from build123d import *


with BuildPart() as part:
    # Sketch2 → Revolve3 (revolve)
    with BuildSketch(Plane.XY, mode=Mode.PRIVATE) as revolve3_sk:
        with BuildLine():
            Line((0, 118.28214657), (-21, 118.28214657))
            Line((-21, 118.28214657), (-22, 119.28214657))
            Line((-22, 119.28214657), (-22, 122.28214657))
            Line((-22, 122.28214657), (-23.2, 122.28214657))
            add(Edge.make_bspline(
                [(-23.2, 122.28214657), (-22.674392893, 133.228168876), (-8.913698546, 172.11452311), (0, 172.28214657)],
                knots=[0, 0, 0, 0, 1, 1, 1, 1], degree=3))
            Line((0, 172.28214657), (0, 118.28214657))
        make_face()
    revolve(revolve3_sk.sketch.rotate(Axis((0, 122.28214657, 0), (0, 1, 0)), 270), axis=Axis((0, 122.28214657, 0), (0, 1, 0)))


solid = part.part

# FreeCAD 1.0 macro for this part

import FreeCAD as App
import Part
import Sketcher

V = App.Vector
Q = App.Units.Quantity

doc = App.newDocument("Part")
body = doc.addObject("PartDesign::Body", "Body")

sketch1 = body.newObject("Sketcher::SketchObject", "Sketch")
sketch1.AttachmentSupport = (doc.getObject("XY_Plane"), [""])
sketch1.MapMode = "FlatFace"
sketch1.addGeometry([
    Part.LineSegment(V(-21, 118.282147, 0), V(0, 118.282147, 0)),
    Part.LineSegment(V(0, 118.282147, 0), V(0, 172.282147, 0)),
    Part.BSplineCurve([V(-23.2, 122.282147, 0), V(-22.674393, 133.228169, 0), V(-8.913699, 172.114523, 0), V(0, 172.282147, 0)], [4, 4], [0, 1], False, 3, [1, 1, 1, 1], False),
    Part.LineSegment(V(-23.2, 122.282147, 0), V(-22, 122.282147, 0)),
    Part.LineSegment(V(-22, 122.282147, 0), V(-22, 119.282147, 0)),
    Part.LineSegment(V(-22, 119.282147, 0), V(-21, 118.282147, 0)),
], False)
sketch1.addConstraint([
    Sketcher.Constraint("Block", 2),
    Sketcher.Constraint("Coincident", 0, 2, 1, 1),
    Sketcher.Constraint("Coincident", 1, 2, 2, 2),
    Sketcher.Constraint("Coincident", 2, 1, 3, 1),
    Sketcher.Constraint("Coincident", 3, 2, 4, 1),
    Sketcher.Constraint("Coincident", 4, 2, 5, 1),
    Sketcher.Constraint("Coincident", 5, 2, 0, 1),
    Sketcher.Constraint("Horizontal", 0),
    Sketcher.Constraint("Vertical", 1),
    Sketcher.Constraint("Horizontal", 3),
    Sketcher.Constraint("Vertical", 4),
    Sketcher.Constraint("DistanceX", 0, 1, 0, 2, Q("21 mm")),
    Sketcher.Constraint("DistanceY", 1, 1, 1, 2, Q("54 mm")),
    Sketcher.Constraint("DistanceY", 4, 2, 4, 1, Q("3 mm")),
    Sketcher.Constraint("Angle", 5, Q("-45 deg")),
])
revolution = body.newObject("PartDesign::Revolution", "Revolution")
revolution.Profile = sketch1
revolution.ReferenceAxis = (sketch1, ["V_Axis"])
revolution.Angle = 360

doc.recompute()
